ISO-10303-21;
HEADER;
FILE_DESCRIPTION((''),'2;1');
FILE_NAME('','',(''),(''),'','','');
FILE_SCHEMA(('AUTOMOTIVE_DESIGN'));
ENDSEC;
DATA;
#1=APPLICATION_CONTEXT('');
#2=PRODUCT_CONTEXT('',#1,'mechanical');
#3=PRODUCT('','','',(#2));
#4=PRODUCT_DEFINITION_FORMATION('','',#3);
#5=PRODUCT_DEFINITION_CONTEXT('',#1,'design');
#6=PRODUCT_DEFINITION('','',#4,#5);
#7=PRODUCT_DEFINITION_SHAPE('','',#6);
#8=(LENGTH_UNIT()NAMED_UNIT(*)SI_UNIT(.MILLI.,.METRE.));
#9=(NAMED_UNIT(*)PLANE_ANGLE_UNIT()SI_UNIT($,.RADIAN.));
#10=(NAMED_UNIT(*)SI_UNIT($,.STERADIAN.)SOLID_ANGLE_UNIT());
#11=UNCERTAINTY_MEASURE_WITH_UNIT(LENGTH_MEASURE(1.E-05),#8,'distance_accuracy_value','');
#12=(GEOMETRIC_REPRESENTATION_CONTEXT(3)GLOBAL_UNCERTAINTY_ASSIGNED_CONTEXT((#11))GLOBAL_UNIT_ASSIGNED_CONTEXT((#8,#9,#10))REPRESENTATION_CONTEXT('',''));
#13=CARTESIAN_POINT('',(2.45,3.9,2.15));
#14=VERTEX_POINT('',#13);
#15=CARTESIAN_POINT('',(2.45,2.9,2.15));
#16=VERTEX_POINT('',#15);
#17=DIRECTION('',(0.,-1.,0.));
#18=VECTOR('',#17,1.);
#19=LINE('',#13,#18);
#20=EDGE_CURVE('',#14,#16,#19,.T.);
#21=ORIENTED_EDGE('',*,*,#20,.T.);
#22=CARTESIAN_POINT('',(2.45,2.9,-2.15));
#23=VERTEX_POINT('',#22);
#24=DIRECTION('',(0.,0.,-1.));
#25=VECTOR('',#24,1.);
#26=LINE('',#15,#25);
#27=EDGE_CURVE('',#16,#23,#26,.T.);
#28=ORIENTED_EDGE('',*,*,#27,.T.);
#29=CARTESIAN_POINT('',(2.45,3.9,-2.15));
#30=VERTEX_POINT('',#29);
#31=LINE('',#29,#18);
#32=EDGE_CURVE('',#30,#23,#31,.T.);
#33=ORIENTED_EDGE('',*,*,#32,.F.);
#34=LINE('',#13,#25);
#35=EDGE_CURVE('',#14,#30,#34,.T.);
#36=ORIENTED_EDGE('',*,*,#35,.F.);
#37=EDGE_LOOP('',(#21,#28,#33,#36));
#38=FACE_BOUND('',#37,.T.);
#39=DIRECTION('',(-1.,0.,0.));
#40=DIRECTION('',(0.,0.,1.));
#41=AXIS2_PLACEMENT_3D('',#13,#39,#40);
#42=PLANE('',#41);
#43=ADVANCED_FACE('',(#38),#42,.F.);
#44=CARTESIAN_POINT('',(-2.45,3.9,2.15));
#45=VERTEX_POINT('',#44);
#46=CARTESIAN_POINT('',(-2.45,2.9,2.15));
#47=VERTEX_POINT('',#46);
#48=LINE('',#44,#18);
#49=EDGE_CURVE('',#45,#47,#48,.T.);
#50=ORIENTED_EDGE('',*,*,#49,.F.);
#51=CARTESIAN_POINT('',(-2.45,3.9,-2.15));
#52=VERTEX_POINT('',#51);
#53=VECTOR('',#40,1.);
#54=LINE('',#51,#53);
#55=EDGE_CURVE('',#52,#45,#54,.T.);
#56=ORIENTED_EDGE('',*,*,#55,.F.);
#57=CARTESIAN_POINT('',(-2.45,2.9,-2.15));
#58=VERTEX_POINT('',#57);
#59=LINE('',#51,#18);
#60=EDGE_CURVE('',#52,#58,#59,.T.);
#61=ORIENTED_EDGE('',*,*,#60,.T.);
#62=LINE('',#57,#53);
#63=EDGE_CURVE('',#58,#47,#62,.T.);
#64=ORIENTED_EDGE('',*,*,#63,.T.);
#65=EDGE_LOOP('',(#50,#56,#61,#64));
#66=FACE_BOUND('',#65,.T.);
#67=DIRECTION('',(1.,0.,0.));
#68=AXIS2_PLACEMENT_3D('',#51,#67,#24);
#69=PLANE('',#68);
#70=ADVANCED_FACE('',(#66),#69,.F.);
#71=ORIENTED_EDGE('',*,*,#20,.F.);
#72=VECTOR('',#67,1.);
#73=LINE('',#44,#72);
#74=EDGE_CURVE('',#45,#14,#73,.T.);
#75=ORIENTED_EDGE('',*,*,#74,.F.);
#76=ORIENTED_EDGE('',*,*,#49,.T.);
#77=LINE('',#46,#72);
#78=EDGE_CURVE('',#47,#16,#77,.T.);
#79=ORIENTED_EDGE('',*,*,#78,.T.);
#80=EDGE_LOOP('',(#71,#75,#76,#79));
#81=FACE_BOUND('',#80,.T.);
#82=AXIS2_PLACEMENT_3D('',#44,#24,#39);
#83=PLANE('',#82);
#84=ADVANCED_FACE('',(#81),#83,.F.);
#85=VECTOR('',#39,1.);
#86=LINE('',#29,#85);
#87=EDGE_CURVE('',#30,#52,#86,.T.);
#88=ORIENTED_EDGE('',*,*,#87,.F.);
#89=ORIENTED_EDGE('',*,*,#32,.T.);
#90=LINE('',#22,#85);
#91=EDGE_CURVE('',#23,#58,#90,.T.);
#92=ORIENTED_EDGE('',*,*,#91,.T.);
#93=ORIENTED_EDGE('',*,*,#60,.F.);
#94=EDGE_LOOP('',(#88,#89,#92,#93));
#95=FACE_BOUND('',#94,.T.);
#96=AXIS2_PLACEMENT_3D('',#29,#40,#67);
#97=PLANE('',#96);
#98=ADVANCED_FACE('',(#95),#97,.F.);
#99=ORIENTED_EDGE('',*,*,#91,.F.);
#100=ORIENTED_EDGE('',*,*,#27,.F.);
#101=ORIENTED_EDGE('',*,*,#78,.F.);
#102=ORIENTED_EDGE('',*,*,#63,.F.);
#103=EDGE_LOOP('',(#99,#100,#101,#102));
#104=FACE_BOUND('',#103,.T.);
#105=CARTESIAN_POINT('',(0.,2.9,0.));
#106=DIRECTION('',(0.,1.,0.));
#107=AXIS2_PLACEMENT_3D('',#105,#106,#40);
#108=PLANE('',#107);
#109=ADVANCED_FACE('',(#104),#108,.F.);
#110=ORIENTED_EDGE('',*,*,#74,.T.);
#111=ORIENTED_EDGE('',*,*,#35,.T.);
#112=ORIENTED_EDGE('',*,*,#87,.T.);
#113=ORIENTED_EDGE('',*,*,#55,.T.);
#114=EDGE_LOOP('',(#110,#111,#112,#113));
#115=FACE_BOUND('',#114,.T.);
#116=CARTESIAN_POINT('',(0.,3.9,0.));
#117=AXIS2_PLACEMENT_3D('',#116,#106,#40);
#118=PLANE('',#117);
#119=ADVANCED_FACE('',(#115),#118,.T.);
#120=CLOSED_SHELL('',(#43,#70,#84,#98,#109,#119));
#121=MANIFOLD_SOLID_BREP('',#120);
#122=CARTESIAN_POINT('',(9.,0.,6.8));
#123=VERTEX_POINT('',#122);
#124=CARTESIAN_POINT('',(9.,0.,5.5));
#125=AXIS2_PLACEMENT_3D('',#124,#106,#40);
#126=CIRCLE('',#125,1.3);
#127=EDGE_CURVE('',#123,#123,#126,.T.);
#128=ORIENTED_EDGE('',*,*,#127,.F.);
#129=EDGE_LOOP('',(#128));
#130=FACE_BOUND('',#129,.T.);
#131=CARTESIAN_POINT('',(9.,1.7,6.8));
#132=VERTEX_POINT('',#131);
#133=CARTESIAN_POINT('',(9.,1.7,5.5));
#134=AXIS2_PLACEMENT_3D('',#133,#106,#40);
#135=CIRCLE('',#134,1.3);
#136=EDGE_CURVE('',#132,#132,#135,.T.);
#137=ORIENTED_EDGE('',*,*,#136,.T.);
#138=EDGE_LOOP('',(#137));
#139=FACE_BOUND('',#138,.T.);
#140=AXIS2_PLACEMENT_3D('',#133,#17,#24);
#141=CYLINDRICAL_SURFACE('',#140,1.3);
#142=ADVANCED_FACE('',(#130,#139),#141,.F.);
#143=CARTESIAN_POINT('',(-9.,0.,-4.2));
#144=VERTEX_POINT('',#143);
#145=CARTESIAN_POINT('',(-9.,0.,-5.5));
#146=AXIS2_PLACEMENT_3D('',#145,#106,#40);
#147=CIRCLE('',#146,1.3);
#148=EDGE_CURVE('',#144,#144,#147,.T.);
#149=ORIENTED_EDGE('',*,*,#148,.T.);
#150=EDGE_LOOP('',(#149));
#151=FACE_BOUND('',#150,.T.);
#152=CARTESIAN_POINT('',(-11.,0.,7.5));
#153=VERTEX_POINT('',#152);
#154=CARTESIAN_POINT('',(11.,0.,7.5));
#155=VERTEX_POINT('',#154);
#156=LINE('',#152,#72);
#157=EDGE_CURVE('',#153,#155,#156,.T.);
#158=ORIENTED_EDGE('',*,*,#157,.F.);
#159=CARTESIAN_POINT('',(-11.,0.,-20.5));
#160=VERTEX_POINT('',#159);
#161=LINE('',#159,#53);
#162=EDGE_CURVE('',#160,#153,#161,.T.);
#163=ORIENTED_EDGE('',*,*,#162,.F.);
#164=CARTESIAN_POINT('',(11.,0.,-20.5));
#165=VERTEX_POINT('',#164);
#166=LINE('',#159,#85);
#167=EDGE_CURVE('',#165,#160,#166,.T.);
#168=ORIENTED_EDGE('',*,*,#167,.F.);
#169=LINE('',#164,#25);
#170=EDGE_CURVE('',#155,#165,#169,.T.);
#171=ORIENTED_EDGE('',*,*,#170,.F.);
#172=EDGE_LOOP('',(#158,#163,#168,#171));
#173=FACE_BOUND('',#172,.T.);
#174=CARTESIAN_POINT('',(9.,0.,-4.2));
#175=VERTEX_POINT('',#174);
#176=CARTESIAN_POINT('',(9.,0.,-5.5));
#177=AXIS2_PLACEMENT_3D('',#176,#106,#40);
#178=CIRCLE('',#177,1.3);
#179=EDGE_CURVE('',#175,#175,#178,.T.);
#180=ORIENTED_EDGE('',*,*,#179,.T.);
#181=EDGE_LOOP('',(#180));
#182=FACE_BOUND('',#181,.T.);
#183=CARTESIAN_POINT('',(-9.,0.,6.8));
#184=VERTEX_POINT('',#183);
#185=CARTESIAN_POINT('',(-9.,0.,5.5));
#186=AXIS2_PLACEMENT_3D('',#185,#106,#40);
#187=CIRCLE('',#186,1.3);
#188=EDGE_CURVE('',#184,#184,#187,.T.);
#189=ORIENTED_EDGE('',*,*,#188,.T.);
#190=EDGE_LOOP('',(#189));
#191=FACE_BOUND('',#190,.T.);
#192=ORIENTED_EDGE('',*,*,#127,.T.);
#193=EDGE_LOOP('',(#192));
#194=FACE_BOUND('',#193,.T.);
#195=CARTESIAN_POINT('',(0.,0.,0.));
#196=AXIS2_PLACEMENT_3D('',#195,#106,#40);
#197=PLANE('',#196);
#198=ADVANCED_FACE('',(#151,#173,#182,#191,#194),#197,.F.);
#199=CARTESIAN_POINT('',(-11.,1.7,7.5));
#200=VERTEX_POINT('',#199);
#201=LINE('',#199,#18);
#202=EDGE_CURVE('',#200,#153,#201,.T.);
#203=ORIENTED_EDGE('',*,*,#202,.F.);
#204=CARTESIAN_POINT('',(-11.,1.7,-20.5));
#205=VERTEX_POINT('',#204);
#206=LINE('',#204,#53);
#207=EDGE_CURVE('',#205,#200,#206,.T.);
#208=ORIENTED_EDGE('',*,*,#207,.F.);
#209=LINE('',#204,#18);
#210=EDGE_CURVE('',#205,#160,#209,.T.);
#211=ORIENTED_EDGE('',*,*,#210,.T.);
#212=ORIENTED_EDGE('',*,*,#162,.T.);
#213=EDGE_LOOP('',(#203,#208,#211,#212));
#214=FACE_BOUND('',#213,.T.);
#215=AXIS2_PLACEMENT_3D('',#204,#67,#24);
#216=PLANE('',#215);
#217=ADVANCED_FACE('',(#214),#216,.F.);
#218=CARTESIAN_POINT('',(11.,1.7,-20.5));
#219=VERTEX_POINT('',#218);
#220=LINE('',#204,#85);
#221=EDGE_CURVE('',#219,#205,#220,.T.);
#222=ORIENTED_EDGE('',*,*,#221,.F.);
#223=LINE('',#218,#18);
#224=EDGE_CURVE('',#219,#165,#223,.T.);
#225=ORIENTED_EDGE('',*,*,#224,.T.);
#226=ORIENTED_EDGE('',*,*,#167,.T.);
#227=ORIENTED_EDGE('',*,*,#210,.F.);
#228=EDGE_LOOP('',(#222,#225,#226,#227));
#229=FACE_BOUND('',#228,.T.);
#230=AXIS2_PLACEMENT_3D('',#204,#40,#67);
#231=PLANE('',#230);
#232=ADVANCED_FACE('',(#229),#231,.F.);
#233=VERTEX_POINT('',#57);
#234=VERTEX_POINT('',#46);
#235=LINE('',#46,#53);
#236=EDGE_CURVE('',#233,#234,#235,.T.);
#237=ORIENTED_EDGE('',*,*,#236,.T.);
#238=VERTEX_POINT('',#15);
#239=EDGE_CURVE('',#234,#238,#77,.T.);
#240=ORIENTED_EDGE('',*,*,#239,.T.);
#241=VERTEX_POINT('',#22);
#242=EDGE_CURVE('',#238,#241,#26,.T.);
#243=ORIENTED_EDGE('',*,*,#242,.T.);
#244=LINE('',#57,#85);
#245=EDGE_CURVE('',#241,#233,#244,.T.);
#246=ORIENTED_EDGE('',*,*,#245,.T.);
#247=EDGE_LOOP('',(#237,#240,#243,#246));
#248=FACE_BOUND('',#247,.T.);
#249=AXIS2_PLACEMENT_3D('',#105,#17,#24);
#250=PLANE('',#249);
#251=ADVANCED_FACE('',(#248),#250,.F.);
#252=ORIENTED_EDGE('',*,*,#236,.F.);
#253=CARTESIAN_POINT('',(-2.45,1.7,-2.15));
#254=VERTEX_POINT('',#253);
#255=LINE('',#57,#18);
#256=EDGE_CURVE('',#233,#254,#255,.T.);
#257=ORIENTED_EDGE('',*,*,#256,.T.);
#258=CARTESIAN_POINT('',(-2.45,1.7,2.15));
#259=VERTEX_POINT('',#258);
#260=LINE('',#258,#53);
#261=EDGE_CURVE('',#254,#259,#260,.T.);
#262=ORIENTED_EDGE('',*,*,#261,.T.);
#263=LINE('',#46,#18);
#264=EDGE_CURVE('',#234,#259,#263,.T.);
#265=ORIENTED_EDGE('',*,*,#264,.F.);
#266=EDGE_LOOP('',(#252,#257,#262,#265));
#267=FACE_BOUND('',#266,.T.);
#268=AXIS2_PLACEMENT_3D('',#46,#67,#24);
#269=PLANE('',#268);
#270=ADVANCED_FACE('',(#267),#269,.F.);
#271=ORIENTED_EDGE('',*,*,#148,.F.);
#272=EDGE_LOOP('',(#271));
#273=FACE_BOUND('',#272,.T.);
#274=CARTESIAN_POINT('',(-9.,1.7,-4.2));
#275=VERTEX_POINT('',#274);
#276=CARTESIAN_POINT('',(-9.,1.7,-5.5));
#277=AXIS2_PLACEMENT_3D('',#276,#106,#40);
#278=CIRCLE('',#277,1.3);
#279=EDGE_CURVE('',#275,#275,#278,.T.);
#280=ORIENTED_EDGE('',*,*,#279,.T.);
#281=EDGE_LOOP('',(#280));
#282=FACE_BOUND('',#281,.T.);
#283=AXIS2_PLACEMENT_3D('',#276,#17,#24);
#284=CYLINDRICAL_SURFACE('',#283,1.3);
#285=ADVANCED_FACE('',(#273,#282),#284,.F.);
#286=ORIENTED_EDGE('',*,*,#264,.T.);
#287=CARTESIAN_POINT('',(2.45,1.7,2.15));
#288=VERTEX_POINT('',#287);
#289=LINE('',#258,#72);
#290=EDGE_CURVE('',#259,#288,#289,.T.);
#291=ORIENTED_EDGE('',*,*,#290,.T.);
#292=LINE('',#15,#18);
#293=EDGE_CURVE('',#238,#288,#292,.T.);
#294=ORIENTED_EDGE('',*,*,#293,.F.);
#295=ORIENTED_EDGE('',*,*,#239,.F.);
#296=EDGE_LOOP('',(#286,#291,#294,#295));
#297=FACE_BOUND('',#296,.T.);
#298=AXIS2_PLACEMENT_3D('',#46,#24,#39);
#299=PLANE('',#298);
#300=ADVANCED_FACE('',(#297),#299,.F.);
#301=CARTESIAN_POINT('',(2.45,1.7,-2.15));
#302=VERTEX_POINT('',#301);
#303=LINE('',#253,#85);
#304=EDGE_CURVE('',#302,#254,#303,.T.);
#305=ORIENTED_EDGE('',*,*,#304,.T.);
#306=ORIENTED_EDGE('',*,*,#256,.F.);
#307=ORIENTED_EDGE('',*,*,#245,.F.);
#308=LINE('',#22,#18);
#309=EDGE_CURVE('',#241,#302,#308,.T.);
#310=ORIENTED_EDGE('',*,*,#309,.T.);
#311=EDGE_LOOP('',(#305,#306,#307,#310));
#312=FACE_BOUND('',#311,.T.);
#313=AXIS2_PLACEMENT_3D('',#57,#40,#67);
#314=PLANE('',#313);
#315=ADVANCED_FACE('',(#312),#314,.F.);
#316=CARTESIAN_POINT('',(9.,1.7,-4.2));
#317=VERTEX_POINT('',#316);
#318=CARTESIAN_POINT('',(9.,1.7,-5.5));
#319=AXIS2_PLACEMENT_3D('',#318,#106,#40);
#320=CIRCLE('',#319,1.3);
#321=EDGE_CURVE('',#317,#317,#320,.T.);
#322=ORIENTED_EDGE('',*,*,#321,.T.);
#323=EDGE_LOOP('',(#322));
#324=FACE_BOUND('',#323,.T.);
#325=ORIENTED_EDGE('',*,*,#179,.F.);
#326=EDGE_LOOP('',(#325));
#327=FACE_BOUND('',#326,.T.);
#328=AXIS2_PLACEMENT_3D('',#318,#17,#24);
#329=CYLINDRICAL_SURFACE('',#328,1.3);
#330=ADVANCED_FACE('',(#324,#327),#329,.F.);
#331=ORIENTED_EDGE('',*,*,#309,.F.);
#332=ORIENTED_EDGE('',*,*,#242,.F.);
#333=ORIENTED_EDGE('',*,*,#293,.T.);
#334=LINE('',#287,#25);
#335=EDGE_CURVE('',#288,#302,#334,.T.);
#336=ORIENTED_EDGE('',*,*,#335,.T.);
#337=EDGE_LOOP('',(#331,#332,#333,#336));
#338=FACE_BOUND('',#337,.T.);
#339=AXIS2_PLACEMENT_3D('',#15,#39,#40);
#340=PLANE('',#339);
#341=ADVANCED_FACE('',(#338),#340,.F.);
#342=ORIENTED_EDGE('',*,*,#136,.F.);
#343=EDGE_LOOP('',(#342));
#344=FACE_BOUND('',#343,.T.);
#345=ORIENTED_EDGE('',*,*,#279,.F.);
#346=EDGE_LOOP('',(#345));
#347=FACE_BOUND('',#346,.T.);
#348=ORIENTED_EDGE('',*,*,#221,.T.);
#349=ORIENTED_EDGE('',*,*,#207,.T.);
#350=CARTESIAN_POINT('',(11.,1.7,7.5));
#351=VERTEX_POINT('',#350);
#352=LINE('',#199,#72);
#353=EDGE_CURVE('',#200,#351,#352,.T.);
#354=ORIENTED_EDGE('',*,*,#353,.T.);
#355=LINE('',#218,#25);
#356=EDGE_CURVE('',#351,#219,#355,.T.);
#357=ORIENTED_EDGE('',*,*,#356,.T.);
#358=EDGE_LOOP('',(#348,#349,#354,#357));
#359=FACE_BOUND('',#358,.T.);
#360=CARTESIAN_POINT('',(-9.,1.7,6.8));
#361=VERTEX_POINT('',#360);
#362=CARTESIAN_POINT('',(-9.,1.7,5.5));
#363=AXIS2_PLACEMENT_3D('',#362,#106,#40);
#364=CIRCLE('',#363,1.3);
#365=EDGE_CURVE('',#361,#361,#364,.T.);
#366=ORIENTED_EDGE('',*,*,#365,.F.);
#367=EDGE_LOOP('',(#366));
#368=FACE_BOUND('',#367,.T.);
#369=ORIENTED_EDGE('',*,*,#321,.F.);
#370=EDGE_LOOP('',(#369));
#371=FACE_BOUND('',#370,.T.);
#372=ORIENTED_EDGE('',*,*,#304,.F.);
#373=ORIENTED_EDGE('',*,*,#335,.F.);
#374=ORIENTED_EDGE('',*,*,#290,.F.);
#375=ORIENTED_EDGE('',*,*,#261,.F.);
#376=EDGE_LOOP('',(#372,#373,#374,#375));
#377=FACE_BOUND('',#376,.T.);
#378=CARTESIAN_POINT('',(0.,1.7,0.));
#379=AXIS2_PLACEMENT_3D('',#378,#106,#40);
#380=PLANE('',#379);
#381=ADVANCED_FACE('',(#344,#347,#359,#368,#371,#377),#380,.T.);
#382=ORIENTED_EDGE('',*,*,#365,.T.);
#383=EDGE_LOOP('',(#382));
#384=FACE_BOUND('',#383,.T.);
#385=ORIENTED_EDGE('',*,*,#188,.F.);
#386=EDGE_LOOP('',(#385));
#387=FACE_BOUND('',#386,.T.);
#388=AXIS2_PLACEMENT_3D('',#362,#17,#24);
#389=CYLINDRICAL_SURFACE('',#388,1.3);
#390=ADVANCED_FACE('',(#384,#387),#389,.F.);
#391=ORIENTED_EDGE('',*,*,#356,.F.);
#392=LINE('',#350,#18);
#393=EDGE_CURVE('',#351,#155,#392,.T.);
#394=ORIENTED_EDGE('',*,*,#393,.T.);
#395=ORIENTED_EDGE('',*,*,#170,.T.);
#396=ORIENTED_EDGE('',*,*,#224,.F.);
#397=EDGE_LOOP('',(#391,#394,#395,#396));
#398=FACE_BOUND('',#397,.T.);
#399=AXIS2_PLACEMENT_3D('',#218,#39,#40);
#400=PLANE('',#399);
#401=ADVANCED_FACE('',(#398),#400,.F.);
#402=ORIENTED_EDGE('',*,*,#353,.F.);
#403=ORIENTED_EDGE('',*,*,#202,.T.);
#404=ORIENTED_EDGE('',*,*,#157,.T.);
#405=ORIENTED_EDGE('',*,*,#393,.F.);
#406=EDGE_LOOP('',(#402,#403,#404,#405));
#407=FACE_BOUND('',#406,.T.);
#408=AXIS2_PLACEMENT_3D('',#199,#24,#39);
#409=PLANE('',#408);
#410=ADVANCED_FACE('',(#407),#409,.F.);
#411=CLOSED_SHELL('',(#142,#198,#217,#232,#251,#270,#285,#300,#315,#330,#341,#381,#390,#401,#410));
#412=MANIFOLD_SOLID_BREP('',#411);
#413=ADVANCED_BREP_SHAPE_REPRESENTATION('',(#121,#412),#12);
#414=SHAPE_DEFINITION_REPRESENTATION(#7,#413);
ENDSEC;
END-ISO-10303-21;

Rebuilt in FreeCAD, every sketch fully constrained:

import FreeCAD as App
import Part
import Sketcher
Q = App.Units.Quantity

doc = App.newDocument("Part")
body = doc.addObject("PartDesign::Body", "Body")

# Sketch on XZ plane
sketch1 = body.newObject("Sketcher::SketchObject", "Sketch")
sketch1.AttachmentSupport = (doc.getObject("XZ_Plane"), [""])
sketch1.MapMode = "FlatFace"
sketch1.addGeometry([
    Part.LineSegment(App.Vector(-11, -20.5, 0), App.Vector(-11, 7.5, 0)),  # 0
    Part.LineSegment(App.Vector(-11, 7.5, 0), App.Vector(11, 7.5, 0)),  # 1
    Part.LineSegment(App.Vector(11, 7.5, 0), App.Vector(11, -20.5, 0)),  # 2
    Part.LineSegment(App.Vector(11, -20.5, 0), App.Vector(-11, -20.5, 0)),  # 3
    Part.Circle(App.Vector(-9, 5.5, 0), App.Vector(0, 0, 1), 1.3),  # 4
    Part.Circle(App.Vector(9, 5.5, 0), App.Vector(0, 0, 1), 1.3),  # 5
    Part.Circle(App.Vector(-9, -5.5, 0), App.Vector(0, 0, 1), 1.3),  # 6
    Part.Circle(App.Vector(9, -5.5, 0), App.Vector(0, 0, 1), 1.3),  # 7
], False)
sketch1.addConstraint([
    Sketcher.Constraint("Coincident", 0, 2, 1, 1),
    Sketcher.Constraint("Coincident", 1, 2, 2, 1),
    Sketcher.Constraint("Coincident", 2, 2, 3, 1),
    Sketcher.Constraint("Coincident", 3, 2, 0, 1),
    Sketcher.Constraint("Vertical", 0),
    Sketcher.Constraint("Horizontal", 1),
    Sketcher.Constraint("Vertical", 2),
    Sketcher.Constraint("Horizontal", 3),
    Sketcher.Constraint("Equal", 4, 5),
    Sketcher.Constraint("Equal", 5, 6),
    Sketcher.Constraint("Equal", 6, 7),
    Sketcher.Constraint("Symmetric", 5, 3, 6, 3, -1, 1),
    Sketcher.Constraint("Symmetric", 4, 3, 7, 3, -1, 1),
    Sketcher.Constraint("Symmetric", 4, 3, 5, 3, -2),
    Sketcher.Constraint("Diameter", 4, Q("2.6 mm")),
    Sketcher.Constraint("DistanceX", 1, 1, 1, 2, Q("22 mm")),
    Sketcher.Constraint("DistanceY", 0, 1, 0, 2, Q("28 mm")),
    Sketcher.Constraint("DistanceX", 4, 3, -1, 1, Q("9 mm")),
    Sketcher.Constraint("DistanceX", 0, 2, -1, 1, Q("11 mm")),
    Sketcher.Constraint("DistanceY", 6, 3, 4, 3, Q("11 mm")),
    Sketcher.Constraint("DistanceY", 4, 3, 0, 2, Q("2 mm")),
])
pad1 = body.newObject("PartDesign::Pad", "Pad")
pad1.Profile = sketch1
pad1.Length = 1.7
pad1.Reversed = True

# Sketch on XZ plane
sketch2 = body.newObject("Sketcher::SketchObject", "Sketch001")
sketch2.AttachmentSupport = (doc.getObject("XZ_Plane"), [""])
sketch2.MapMode = "FlatFace"
sketch2.AttachmentOffset = App.Placement(App.Vector(0, 0, -1.7), App.Rotation())
sketch2.addGeometry([
    Part.LineSegment(App.Vector(-2.5, -2.1, 0), App.Vector(-2.5, 2.1, 0)),
    Part.LineSegment(App.Vector(-2.5, 2.1, 0), App.Vector(2.5, 2.1, 0)),
    Part.LineSegment(App.Vector(2.5, 2.1, 0), App.Vector(2.5, -2.1, 0)),
    Part.LineSegment(App.Vector(2.5, -2.1, 0), App.Vector(-2.5, -2.1, 0)),
], False)
sketch2.addConstraint([
    Sketcher.Constraint("Coincident", 0, 2, 1, 1),
    Sketcher.Constraint("Coincident", 1, 2, 2, 1),
    Sketcher.Constraint("Coincident", 2, 2, 3, 1),
    Sketcher.Constraint("Coincident", 3, 2, 0, 1),
    Sketcher.Constraint("Vertical", 0),
    Sketcher.Constraint("Horizontal", 1),
    Sketcher.Constraint("Vertical", 2),
    Sketcher.Constraint("Horizontal", 3),
    Sketcher.Constraint("Symmetric", 0, 2, 2, 2, -1, 1),
    Sketcher.Constraint("DistanceX", 1, 1, 1, 2, Q("4.9 mm")),
    Sketcher.Constraint("DistanceY", 0, 1, 0, 2, Q("4.3 mm")),
])
pad2 = body.newObject("PartDesign::Pad", "Pad001")
pad2.Profile = sketch2
pad2.Length = 1.2
pad2.Reversed = True
body2 = doc.addObject("PartDesign::Body", "Body001")

# Sketch on XZ plane
sketch3 = body2.newObject("Sketcher::SketchObject", "Sketch002")
sketch3.AttachmentSupport = (doc.getObject("XZ_Plane001"), [""])
sketch3.MapMode = "FlatFace"
sketch3.AttachmentOffset = App.Placement(App.Vector(0, 0, -2.9), App.Rotation())
sketch3.addGeometry([
    Part.LineSegment(App.Vector(-2.5, -2.1, 0), App.Vector(-2.5, 2.1, 0)),
    Part.LineSegment(App.Vector(-2.5, 2.1, 0), App.Vector(2.5, 2.1, 0)),
    Part.LineSegment(App.Vector(2.5, 2.1, 0), App.Vector(2.5, -2.1, 0)),
    Part.LineSegment(App.Vector(2.5, -2.1, 0), App.Vector(-2.5, -2.1, 0)),
], False)
sketch3.addConstraint([
    Sketcher.Constraint("Coincident", 0, 2, 1, 1),
    Sketcher.Constraint("Coincident", 1, 2, 2, 1),
    Sketcher.Constraint("Coincident", 2, 2, 3, 1),
    Sketcher.Constraint("Coincident", 3, 2, 0, 1),
    Sketcher.Constraint("Vertical", 0),
    Sketcher.Constraint("Horizontal", 1),
    Sketcher.Constraint("Vertical", 2),
    Sketcher.Constraint("Horizontal", 3),
    Sketcher.Constraint("Symmetric", 0, 2, 2, 2, -1, 1),
    Sketcher.Constraint("DistanceX", 1, 1, 1, 2, Q("4.9 mm")),
    Sketcher.Constraint("DistanceY", 0, 1, 0, 2, Q("4.3 mm")),
])
pad3 = body2.newObject("PartDesign::Pad", "Pad002")
pad3.Profile = sketch3
pad3.Length = 1
pad3.Reversed = True

doc.recompute()
